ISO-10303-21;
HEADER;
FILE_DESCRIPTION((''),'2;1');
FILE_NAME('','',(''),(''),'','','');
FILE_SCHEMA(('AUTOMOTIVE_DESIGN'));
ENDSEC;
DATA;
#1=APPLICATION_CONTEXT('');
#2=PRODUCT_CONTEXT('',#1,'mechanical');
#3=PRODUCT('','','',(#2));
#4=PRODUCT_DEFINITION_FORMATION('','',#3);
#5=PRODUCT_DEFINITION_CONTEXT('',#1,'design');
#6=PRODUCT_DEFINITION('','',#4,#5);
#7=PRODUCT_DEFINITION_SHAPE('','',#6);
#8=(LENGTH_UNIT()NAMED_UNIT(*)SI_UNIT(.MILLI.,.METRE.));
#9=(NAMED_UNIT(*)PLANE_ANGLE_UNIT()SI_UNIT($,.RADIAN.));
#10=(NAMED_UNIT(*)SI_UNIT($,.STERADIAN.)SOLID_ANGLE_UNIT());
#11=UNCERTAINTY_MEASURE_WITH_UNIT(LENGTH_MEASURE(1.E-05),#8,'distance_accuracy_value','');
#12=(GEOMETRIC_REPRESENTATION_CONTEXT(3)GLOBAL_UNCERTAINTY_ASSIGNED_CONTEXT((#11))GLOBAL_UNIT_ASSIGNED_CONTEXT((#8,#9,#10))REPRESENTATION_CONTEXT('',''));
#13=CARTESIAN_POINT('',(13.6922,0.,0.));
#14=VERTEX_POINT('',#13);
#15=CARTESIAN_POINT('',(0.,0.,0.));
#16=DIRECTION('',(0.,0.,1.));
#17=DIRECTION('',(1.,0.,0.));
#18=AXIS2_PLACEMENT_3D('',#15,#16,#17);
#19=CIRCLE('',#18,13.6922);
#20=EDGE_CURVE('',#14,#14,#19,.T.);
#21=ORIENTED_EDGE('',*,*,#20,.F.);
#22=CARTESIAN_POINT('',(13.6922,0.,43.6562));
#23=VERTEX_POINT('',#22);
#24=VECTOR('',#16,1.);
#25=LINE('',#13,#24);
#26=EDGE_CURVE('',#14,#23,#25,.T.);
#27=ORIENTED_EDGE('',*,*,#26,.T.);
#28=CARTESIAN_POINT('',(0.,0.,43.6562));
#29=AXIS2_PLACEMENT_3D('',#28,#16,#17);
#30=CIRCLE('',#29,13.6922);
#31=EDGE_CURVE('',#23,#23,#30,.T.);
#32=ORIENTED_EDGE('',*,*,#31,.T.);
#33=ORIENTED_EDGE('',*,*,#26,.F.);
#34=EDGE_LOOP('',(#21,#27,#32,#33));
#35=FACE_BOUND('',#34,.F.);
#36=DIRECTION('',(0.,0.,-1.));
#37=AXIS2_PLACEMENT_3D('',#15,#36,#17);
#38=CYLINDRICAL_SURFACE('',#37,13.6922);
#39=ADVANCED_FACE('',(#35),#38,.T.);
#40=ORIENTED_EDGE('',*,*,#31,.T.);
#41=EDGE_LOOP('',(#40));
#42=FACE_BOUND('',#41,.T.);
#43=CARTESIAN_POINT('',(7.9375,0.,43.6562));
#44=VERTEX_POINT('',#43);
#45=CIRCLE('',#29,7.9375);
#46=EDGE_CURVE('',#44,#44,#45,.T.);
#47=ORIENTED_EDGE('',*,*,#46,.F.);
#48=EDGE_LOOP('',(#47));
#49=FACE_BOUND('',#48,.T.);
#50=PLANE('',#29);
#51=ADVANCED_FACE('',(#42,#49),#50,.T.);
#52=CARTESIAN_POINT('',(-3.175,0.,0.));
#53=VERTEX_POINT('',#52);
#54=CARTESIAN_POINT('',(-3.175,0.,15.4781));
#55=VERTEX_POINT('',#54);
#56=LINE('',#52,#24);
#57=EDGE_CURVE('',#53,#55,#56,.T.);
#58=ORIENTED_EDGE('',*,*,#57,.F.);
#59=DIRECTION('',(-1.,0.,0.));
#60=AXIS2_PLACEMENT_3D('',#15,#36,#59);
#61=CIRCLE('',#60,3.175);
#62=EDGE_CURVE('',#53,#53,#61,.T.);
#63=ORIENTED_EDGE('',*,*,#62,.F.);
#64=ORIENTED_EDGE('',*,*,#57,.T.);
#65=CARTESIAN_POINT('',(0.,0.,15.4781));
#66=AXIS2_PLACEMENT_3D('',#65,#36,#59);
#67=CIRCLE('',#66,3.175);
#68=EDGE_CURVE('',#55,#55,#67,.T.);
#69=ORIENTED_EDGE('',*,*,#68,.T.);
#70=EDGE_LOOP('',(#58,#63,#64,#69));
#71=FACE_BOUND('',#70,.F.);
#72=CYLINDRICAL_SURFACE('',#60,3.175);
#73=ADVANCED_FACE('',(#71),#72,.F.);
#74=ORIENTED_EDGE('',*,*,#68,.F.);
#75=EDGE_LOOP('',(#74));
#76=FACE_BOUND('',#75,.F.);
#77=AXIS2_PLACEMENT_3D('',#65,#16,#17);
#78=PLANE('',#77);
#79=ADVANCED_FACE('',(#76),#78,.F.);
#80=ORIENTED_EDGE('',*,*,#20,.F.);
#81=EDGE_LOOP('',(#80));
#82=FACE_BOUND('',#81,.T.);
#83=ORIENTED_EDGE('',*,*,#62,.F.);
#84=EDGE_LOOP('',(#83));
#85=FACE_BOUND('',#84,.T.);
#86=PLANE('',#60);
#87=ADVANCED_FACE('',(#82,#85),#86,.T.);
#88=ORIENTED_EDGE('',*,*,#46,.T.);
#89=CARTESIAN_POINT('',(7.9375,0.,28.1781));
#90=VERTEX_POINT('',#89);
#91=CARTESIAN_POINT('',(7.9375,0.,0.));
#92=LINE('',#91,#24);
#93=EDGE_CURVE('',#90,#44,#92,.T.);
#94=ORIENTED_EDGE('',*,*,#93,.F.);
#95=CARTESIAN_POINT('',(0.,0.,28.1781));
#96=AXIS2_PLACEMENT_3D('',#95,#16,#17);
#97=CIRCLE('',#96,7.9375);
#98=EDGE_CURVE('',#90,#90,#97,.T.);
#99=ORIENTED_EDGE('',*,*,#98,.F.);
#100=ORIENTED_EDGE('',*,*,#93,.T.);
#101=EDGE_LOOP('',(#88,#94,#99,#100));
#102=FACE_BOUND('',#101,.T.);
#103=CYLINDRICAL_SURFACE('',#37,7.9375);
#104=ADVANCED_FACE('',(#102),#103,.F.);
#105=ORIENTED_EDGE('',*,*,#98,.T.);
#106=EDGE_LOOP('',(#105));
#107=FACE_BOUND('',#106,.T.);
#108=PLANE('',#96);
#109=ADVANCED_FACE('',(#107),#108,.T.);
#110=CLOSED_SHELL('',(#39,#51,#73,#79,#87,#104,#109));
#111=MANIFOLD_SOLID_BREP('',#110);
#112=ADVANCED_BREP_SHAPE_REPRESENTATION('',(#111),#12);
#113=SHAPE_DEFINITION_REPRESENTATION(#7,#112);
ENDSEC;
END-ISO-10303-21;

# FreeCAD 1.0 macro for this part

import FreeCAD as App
import Part
import Sketcher
from FreeCAD import Vector
Q = App.Units.Quantity

doc = App.newDocument("Part")
body = doc.addObject("PartDesign::Body", "Body")

sketch1 = doc.addObject("Sketcher::SketchObject", "Sketch")
body.addObject(sketch1)
sketch1.AttachmentSupport = (doc.XY_Plane, [""])
sketch1.MapMode = "FlatFace"
sketch1.addGeometry([
    Part.Circle(Vector(0, 0, 0), Vector(0, 0, 1), 14),
    Part.Circle(Vector(0, 0, 0), Vector(0, 0, 1), 8),
], False)
sketch1.addConstraint([
    Sketcher.Constraint("Coincident", 0, 3, -1, 1),
    Sketcher.Constraint("Coincident", 1, 3, -1, 1),
    Sketcher.Constraint("Diameter", 0, Q("1.078126 in")),
    Sketcher.Constraint("Diameter", 1, Q("0.625 in")),
])
pad1 = doc.addObject("PartDesign::Pad", "Pad")
body.addObject(pad1)
pad1.Profile = sketch1
pad1.Length = Q("1.718748 in")

sketch2 = doc.addObject("Sketcher::SketchObject", "Sketch001")
body.addObject(sketch2)
sketch2.AttachmentSupport = (doc.XY_Plane, [""])
sketch2.MapMode = "FlatFace"
sketch2.AttachmentOffset = App.Placement(Vector(0, 0, 0.859374 * 25.4), App.Rotation())
sketch2.addGeometry(Part.Circle(Vector(0, 0, 0), Vector(0, 0, 1), 8), False)
sketch2.addConstraint([
    Sketcher.Constraint("Coincident", 0, 3, -1, 1),
    Sketcher.Constraint("Diameter", 0, Q("0.625 in")),
])
pad2 = doc.addObject("PartDesign::Pad", "Pad001")
body.addObject(pad2)
pad2.Profile = sketch2
pad2.Length = Q("0.5 in")
pad2.Midplane = True

sketch3 = doc.addObject("Sketcher::SketchObject", "Sketch002")
body.addObject(sketch3)
sketch3.AttachmentSupport = (doc.XY_Plane, [""])
sketch3.MapMode = "FlatFace"
sketch3.addGeometry([
    Part.Circle(Vector(0, 0, 0), Vector(0, 0, 1), 7.9),
    Part.Circle(Vector(0, 0, 0), Vector(0, 0, 1), 3.2),
], False)
sketch3.addConstraint([
    Sketcher.Constraint("Coincident", 0, 3, -1, 1),
    Sketcher.Constraint("Coincident", 1, 3, -1, 1),
    Sketcher.Constraint("Diameter", 1, Q("0.25 in")),
    Sketcher.Constraint("Diameter", 0, Q("0.625 in")),
])
pad3 = doc.addObject("PartDesign::Pad", "Pad002")
body.addObject(pad3)
pad3.Profile = sketch3
pad3.Length = Q("0.609374 in")

doc.recompute()
